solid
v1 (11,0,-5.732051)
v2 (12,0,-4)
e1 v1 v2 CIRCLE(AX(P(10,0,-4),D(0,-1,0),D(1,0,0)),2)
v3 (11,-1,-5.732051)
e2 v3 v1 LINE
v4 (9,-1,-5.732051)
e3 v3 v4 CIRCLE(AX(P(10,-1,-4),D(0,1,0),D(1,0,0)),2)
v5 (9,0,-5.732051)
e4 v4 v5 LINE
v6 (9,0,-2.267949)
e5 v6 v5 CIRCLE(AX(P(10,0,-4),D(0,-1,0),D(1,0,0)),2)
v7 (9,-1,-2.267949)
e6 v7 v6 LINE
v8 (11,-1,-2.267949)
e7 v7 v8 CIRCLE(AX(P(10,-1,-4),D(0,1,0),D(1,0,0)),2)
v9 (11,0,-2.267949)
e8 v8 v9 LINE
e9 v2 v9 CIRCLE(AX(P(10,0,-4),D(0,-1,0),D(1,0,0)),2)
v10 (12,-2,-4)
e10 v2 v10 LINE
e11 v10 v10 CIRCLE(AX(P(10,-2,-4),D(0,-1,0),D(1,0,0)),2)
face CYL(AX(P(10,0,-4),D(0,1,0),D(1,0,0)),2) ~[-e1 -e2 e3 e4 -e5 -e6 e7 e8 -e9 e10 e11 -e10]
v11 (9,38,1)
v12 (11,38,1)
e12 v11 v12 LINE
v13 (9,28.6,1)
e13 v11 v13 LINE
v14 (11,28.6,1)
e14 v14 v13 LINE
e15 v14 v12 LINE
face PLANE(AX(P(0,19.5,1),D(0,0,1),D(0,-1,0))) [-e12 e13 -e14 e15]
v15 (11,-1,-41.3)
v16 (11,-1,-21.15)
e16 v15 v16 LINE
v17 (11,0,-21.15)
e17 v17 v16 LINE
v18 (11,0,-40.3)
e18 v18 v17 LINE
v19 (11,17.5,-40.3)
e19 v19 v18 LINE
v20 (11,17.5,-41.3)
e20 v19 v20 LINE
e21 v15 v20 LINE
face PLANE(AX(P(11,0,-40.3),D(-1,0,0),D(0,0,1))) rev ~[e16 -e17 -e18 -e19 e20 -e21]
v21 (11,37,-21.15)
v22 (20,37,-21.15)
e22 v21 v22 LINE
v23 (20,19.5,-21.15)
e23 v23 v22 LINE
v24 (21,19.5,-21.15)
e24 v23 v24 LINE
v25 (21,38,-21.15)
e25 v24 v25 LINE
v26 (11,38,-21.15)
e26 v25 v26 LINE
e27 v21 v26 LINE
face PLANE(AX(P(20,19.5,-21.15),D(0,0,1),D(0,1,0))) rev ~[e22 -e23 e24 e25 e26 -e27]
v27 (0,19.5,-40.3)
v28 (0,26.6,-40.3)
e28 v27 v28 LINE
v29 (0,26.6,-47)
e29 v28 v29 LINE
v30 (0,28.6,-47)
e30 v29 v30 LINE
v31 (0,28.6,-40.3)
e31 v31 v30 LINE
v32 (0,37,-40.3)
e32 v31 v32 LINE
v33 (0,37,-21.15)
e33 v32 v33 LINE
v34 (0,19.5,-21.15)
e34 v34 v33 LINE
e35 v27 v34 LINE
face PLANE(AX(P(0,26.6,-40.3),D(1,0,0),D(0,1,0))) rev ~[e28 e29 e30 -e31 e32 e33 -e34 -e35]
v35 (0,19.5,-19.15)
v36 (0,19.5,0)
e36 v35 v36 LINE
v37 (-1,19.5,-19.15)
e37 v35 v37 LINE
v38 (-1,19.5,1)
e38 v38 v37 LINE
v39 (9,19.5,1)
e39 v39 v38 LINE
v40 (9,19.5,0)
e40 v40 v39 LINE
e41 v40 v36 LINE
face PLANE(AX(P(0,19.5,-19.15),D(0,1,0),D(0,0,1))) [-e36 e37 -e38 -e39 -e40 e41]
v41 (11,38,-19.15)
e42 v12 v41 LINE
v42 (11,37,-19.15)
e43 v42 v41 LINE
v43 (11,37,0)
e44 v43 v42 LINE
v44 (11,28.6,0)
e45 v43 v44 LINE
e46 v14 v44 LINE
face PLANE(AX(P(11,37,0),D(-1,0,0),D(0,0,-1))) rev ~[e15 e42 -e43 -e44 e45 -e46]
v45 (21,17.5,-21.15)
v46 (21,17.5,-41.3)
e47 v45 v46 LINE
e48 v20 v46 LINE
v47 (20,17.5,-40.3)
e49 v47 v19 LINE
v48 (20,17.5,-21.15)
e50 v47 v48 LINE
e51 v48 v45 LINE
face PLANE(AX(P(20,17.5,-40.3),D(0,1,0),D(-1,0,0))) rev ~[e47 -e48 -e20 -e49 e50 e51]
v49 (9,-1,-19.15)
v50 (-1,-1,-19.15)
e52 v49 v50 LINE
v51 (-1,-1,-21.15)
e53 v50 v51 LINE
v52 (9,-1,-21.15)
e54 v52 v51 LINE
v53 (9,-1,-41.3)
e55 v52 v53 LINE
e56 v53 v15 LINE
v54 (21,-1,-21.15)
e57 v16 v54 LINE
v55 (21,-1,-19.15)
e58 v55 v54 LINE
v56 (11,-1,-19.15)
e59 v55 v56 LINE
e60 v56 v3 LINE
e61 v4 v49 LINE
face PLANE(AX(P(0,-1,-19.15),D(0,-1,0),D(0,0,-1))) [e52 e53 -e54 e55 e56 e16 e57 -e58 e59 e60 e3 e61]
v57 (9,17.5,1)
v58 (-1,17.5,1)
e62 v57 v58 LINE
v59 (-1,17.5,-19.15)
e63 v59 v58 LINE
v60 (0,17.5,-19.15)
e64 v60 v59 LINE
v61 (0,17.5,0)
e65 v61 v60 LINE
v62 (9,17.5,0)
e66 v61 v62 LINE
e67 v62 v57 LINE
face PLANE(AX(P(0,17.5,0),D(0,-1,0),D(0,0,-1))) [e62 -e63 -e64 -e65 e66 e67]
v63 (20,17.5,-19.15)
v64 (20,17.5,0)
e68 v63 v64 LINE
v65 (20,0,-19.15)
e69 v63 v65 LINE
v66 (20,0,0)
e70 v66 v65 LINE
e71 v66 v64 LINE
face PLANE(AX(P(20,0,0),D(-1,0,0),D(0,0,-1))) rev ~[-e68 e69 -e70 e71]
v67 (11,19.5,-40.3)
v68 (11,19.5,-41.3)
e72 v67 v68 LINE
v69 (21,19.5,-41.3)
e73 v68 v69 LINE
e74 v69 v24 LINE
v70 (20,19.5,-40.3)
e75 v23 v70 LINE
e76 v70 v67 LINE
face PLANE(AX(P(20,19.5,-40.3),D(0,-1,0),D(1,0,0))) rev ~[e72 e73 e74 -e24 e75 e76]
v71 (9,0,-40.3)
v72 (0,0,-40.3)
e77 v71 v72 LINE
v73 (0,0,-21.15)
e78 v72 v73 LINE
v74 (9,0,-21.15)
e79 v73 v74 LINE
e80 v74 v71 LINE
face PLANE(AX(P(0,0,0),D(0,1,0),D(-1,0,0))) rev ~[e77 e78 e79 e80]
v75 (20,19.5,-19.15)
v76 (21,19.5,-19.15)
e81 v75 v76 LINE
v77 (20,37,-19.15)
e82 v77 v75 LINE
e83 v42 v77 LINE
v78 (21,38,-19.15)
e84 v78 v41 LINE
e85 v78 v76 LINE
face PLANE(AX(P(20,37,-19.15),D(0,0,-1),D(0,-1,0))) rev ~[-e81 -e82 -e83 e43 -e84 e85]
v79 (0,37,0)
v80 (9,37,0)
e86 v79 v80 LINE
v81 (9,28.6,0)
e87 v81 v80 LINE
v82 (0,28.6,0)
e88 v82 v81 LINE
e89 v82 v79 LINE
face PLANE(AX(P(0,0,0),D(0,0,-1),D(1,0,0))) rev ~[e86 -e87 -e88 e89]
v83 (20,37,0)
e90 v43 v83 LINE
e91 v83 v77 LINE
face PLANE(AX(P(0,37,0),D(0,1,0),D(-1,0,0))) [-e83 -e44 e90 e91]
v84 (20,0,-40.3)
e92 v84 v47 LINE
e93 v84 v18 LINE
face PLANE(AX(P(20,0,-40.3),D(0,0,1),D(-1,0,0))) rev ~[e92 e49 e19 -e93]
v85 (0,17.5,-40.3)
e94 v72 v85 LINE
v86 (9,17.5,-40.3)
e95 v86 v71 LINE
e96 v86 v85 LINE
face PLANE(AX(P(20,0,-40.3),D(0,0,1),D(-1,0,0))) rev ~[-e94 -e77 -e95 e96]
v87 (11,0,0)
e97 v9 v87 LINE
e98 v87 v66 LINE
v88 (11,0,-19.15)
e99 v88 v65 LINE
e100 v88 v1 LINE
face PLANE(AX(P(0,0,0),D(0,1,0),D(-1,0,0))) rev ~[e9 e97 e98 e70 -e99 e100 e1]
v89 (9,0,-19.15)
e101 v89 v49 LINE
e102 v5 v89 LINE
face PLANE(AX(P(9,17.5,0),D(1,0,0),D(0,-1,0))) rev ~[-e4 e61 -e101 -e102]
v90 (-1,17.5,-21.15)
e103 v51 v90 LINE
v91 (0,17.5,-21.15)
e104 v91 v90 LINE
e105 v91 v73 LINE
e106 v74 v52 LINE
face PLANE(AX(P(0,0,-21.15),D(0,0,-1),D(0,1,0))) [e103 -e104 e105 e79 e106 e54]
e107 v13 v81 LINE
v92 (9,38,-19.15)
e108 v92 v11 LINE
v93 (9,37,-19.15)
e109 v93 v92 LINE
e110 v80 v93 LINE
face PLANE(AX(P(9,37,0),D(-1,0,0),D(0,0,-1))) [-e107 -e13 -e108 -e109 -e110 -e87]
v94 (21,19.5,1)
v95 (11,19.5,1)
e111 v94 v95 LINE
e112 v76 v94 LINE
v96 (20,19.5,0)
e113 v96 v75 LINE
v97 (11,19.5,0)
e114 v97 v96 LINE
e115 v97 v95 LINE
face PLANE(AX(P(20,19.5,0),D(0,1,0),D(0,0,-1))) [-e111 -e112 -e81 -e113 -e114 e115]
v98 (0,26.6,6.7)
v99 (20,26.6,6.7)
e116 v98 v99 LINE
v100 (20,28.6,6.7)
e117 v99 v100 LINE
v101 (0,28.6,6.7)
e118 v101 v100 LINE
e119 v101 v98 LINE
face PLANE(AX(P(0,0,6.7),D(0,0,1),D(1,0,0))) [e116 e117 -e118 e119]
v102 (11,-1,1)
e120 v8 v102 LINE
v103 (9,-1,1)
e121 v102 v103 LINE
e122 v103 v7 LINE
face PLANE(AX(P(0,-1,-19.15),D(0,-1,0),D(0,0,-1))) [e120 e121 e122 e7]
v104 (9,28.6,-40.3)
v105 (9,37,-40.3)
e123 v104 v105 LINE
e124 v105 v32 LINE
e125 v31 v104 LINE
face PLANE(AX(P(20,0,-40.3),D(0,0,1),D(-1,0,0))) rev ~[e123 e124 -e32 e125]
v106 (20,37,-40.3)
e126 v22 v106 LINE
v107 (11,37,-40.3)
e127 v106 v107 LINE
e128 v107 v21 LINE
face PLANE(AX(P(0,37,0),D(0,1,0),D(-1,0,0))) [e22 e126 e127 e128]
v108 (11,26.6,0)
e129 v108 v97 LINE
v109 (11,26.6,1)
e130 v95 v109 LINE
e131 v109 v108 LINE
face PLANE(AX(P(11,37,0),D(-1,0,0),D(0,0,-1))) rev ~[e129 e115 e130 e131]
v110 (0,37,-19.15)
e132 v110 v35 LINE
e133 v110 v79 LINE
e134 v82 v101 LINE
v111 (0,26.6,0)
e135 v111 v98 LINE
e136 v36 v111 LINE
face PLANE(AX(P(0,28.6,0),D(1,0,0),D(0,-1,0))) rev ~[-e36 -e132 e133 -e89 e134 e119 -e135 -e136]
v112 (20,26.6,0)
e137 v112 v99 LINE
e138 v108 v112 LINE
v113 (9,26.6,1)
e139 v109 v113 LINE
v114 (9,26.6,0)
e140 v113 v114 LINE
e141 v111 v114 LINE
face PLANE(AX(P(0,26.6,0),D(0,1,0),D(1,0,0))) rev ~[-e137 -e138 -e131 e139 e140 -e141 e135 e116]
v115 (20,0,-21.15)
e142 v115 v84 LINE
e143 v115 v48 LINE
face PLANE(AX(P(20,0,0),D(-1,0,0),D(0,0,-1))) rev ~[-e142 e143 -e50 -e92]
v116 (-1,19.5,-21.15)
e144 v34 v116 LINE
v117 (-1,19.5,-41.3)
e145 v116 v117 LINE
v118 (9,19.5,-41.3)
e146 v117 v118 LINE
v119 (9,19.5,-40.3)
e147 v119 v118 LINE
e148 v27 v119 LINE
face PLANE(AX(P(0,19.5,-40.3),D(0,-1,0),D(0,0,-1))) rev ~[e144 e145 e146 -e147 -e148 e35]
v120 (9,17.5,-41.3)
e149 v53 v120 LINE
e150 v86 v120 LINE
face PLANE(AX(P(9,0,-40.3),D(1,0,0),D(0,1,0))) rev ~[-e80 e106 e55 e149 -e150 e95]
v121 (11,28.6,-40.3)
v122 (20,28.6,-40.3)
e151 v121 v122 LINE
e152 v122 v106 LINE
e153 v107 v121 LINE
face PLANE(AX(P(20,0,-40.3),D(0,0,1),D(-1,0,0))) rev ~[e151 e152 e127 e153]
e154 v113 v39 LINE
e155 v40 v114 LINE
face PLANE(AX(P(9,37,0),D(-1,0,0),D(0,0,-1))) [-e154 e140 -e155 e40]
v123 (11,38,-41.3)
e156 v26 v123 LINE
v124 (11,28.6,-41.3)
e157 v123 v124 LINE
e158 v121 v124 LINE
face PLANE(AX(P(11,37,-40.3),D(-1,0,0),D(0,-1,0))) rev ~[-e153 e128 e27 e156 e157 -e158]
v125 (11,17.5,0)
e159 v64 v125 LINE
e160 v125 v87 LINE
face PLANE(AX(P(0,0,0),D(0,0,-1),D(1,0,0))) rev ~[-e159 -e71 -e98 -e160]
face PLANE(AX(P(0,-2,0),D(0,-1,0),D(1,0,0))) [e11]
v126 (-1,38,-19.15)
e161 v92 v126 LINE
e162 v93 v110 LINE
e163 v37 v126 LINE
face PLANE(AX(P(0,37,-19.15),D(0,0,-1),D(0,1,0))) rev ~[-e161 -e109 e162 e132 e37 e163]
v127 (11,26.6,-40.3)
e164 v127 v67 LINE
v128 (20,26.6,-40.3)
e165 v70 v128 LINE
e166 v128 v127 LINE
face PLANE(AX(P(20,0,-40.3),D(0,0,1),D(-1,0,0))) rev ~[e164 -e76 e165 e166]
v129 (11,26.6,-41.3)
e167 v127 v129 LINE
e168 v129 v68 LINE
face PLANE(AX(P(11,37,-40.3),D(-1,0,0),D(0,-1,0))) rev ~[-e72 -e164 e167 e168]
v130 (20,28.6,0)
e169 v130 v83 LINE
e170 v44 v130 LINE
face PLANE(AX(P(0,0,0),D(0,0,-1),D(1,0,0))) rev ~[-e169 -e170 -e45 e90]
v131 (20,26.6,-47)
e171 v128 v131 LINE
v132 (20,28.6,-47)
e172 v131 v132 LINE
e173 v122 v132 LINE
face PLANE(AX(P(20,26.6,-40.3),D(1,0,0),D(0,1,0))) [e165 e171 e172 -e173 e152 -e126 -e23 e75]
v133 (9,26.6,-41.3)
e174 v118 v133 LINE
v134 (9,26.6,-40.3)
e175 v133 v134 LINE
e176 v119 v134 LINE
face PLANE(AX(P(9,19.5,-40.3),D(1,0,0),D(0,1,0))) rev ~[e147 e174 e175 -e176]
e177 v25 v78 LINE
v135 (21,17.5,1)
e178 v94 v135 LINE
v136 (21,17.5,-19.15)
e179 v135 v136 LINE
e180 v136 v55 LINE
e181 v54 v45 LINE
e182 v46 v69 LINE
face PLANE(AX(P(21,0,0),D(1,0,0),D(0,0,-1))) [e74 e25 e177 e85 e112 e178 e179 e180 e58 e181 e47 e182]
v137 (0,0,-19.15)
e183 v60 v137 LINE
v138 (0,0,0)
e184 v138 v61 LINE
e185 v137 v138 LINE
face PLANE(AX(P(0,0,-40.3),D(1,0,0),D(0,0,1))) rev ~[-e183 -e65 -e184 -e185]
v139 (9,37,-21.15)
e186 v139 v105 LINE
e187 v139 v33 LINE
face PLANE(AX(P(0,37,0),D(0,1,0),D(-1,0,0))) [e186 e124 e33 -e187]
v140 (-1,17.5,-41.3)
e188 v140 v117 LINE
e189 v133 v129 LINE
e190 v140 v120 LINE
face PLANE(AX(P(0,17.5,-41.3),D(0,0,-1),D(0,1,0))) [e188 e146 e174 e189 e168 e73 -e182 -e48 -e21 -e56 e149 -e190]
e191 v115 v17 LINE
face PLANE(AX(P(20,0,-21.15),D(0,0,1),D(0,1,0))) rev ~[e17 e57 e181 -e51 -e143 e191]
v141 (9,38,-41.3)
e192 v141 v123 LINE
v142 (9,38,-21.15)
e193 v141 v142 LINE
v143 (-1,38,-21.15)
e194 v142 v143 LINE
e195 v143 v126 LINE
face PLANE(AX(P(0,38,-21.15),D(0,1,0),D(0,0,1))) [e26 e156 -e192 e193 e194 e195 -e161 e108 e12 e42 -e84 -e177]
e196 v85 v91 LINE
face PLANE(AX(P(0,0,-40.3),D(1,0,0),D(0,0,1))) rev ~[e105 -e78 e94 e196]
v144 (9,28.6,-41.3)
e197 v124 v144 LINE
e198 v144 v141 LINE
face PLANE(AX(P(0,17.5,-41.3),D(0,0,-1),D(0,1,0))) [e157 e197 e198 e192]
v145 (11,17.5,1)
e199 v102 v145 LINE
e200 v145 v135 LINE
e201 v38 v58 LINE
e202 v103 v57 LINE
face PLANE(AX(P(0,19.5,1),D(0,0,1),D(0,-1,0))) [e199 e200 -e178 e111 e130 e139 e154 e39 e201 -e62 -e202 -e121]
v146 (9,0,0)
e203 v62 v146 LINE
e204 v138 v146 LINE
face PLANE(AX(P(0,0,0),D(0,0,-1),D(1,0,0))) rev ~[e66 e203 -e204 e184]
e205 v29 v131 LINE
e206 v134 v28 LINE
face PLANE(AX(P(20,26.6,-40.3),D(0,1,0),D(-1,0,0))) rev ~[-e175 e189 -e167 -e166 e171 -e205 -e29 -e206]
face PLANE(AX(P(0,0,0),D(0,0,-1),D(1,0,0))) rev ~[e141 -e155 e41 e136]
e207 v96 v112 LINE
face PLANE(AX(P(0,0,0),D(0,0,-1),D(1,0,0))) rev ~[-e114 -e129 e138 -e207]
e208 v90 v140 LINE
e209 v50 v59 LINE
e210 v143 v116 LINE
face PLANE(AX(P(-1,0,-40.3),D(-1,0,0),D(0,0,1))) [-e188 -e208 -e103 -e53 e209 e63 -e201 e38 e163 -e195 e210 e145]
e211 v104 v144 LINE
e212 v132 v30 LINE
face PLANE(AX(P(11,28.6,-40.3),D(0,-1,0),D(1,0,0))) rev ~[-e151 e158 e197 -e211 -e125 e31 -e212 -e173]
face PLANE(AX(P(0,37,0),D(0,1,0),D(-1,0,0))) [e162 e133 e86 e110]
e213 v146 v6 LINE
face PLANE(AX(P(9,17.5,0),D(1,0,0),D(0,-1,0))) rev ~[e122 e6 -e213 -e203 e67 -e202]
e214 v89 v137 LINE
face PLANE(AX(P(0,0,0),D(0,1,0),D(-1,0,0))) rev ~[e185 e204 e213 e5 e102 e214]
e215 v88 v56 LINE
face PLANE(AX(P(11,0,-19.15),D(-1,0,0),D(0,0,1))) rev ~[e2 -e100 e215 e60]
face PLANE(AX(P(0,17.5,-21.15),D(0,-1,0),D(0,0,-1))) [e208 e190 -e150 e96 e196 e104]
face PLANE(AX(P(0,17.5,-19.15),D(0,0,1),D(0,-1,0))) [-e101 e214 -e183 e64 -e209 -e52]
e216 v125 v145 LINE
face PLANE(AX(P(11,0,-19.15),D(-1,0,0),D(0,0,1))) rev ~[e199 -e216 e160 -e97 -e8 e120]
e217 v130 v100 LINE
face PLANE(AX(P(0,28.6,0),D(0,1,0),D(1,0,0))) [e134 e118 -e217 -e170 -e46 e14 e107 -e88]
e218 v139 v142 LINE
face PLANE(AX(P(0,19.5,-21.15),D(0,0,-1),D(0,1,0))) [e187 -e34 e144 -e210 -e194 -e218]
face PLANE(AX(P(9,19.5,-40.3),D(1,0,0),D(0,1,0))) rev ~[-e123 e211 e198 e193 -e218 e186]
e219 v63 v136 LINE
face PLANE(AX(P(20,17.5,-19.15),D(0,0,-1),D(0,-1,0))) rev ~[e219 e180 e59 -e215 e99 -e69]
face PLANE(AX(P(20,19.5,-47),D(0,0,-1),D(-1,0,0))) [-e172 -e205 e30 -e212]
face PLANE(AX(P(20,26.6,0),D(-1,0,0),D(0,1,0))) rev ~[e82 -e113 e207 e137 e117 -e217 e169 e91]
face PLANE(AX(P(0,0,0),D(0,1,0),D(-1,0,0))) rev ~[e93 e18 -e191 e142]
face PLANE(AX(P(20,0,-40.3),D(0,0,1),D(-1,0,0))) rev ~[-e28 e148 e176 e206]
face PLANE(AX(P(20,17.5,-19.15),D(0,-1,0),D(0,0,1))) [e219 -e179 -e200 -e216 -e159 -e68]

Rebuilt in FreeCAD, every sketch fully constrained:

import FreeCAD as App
import Part
import Sketcher

doc = App.newDocument("Part")
body = doc.addObject("PartDesign::Body", "Body")

# Sketch on XZ plane
sketch1 = body.newObject("Sketcher::SketchObject", "Sketch")
sketch1.AttachmentSupport = (doc.getObject("XZ_Plane"), [""])
sketch1.MapMode = "FlatFace"
sketch1.addGeometry([
    Part.LineSegment(App.Vector(0, -40, 0), App.Vector(0, 0, 0)),
    Part.LineSegment(App.Vector(0, 0, 0), App.Vector(20, 0, 0)),
    Part.LineSegment(App.Vector(20, 0, 0), App.Vector(20, -40, 0)),
    Part.LineSegment(App.Vector(20, -40, 0), App.Vector(0, -40, 0)),
], False)
sketch1.addConstraint([
    Sketcher.Constraint("Coincident", 0, 2, 1, 1),
    Sketcher.Constraint("Coincident", 1, 2, 2, 1),
    Sketcher.Constraint("Coincident", 2, 2, 3, 1),
    Sketcher.Constraint("Coincident", 3, 2, 0, 1),
    Sketcher.Constraint("Vertical", 0),
    Sketcher.Constraint("Horizontal", 1),
    Sketcher.Constraint("Vertical", 2),
    Sketcher.Constraint("Horizontal", 3),
    Sketcher.Constraint("Coincident", 0, 2, -1, 1),
    Sketcher.Constraint("DistanceX", 1, 1, 1, 2, 20.0),
    Sketcher.Constraint("DistanceY", 0, 1, 0, 2, 40.3),
])
pad1 = body.newObject("PartDesign::Pad", "Pad")
pad1.Profile = sketch1
pad1.Length = 37
pad1.Reversed = True

# Sketch on YZ plane
sketch2 = body.newObject("Sketcher::SketchObject", "Sketch001")
sketch2.AttachmentSupport = (doc.getObject("YZ_Plane"), [""])
sketch2.MapMode = "FlatFace"
sketch2.AttachmentOffset = App.Placement(App.Vector(0, 0, 20), App.Rotation())
sketch2.addGeometry([
    Part.LineSegment(App.Vector(17.5, -19.1, 0), App.Vector(0, -19.1, 0)),  # 0
    Part.LineSegment(App.Vector(0, -19.1, 0), App.Vector(0, -21.1, 0)),  # 1
    Part.LineSegment(App.Vector(0, -21.1, 0), App.Vector(17.5, -21.1, 0)),  # 2
    Part.LineSegment(App.Vector(17.5, -21.1, 0), App.Vector(17.5, -40.3, 0)),  # 3
    Part.LineSegment(App.Vector(17.5, -40.3, 0), App.Vector(19.5, -40.3, 0)),  # 4
    Part.LineSegment(App.Vector(19.5, -40.3, 0), App.Vector(19.5, -21.1, 0)),  # 5
    Part.LineSegment(App.Vector(19.5, -21.1, 0), App.Vector(37, -21.1, 0)),  # 6
    Part.LineSegment(App.Vector(37, -21.1, 0), App.Vector(37, -19.1, 0)),  # 7
    Part.LineSegment(App.Vector(37, -19.1, 0), App.Vector(19.5, -19.1, 0)),  # 8
    Part.LineSegment(App.Vector(19.5, -19.1, 0), App.Vector(19.5, 0, 0)),  # 9
    Part.LineSegment(App.Vector(19.5, 0, 0), App.Vector(17.5, 0, 0)),  # 10
    Part.LineSegment(App.Vector(17.5, 0, 0), App.Vector(17.5, -19.1, 0)),  # 11
], False)
sketch2.addConstraint([
    Sketcher.Constraint("Coincident", 0, 2, 1, 1),
    Sketcher.Constraint("Coincident", 1, 2, 2, 1),
    Sketcher.Constraint("Coincident", 2, 2, 3, 1),
    Sketcher.Constraint("Coincident", 3, 2, 4, 1),
    Sketcher.Constraint("Coincident", 4, 2, 5, 1),
    Sketcher.Constraint("Coincident", 5, 2, 6, 1),
    Sketcher.Constraint("Coincident", 6, 2, 7, 1),
    Sketcher.Constraint("Coincident", 7, 2, 8, 1),
    Sketcher.Constraint("Coincident", 8, 2, 9, 1),
    Sketcher.Constraint("Coincident", 9, 2, 10, 1),
    Sketcher.Constraint("Coincident", 10, 2, 11, 1),
    Sketcher.Constraint("Coincident", 11, 2, 0, 1),
    Sketcher.Constraint("Horizontal", 0),
    Sketcher.Constraint("Vertical", 1),
    Sketcher.Constraint("Horizontal", 2),
    Sketcher.Constraint("Vertical", 3),
    Sketcher.Constraint("Horizontal", 4),
    Sketcher.Constraint("Vertical", 5),
    Sketcher.Constraint("Horizontal", 6),
    Sketcher.Constraint("Vertical", 7),
    Sketcher.Constraint("Horizontal", 8),
    Sketcher.Constraint("Vertical", 9),
    Sketcher.Constraint("Horizontal", 10),
    Sketcher.Constraint("Vertical", 11),
    Sketcher.Constraint("PointOnObject", 0, 2, -2),
    Sketcher.Constraint("PointOnObject", 9, 2, -1),
    Sketcher.Constraint("Horizontal", 2, 2, 5, 2),
    Sketcher.Constraint("Horizontal", 0, 2, 7, 2),
    Sketcher.Constraint("Vertical", 5, 2, 8, 2),
    Sketcher.Constraint("Vertical", 3, 2, 10, 2),
    Sketcher.Constraint("Equal", 2, 6),
    Sketcher.Constraint("Equal", 10, 1),
    Sketcher.Constraint("Equal", 5, 9),
    Sketcher.Constraint("DistanceX", 4, 1, 4, 2, 2.0),
    Sketcher.Constraint("DistanceX", 0, 2, 0, 1, 17.5),
    Sketcher.Constraint("DistanceY", 3, 2, 3, 1, 19.15),
])
pad2 = body.newObject("PartDesign::Pad", "Pad001")
pad2.Profile = sketch2
pad2.Length = 1

# Sketch on XZ plane
sketch3 = body.newObject("Sketcher::SketchObject", "Sketch002")
sketch3.AttachmentSupport = (doc.getObject("XZ_Plane"), [""])
sketch3.MapMode = "FlatFace"
sketch3.addGeometry([
    Part.LineSegment(App.Vector(11, 0, 0), App.Vector(9, 0, 0)),  # 0
    Part.LineSegment(App.Vector(9, 0, 0), App.Vector(9, -19.1, 0)),  # 1
    Part.LineSegment(App.Vector(9, -19.1, 0), App.Vector(0, -19.1, 0)),  # 2
    Part.LineSegment(App.Vector(0, -19.1, 0), App.Vector(0, -21.1, 0)),  # 3
    Part.LineSegment(App.Vector(0, -21.1, 0), App.Vector(9, -21.1, 0)),  # 4
    Part.LineSegment(App.Vector(9, -21.1, 0), App.Vector(9, -40.3, 0)),  # 5
    Part.LineSegment(App.Vector(9, -40.3, 0), App.Vector(11, -40.3, 0)),  # 6
    Part.LineSegment(App.Vector(11, -40.3, 0), App.Vector(11, -21.1, 0)),  # 7
    Part.LineSegment(App.Vector(11, -21.1, 0), App.Vector(21, -21.1, 0)),  # 8
    Part.LineSegment(App.Vector(21, -21.1, 0), App.Vector(21, -19.1, 0)),  # 9
    Part.LineSegment(App.Vector(21, -19.1, 0), App.Vector(11, -19.1, 0)),  # 10
    Part.LineSegment(App.Vector(11, -19.1, 0), App.Vector(11, 0, 0)),  # 11
], False)
sketch3.addConstraint([
    Sketcher.Constraint("Coincident", 0, 2, 1, 1),
    Sketcher.Constraint("Coincident", 1, 2, 2, 1),
    Sketcher.Constraint("Coincident", 2, 2, 3, 1),
    Sketcher.Constraint("Coincident", 3, 2, 4, 1),
    Sketcher.Constraint("Coincident", 4, 2, 5, 1),
    Sketcher.Constraint("Coincident", 5, 2, 6, 1),
    Sketcher.Constraint("Coincident", 6, 2, 7, 1),
    Sketcher.Constraint("Coincident", 7, 2, 8, 1),
    Sketcher.Constraint("Coincident", 8, 2, 9, 1),
    Sketcher.Constraint("Coincident", 9, 2, 10, 1),
    Sketcher.Constraint("Coincident", 10, 2, 11, 1),
    Sketcher.Constraint("Coincident", 11, 2, 0, 1),
    Sketcher.Constraint("Horizontal", 0),
    Sketcher.Constraint("Vertical", 1),
    Sketcher.Constraint("Horizontal", 2),
    Sketcher.Constraint("Vertical", 3),
    Sketcher.Constraint("Horizontal", 4),
    Sketcher.Constraint("Vertical", 5),
    Sketcher.Constraint("Horizontal", 6),
    Sketcher.Constraint("Vertical", 7),
    Sketcher.Constraint("Horizontal", 8),
    Sketcher.Constraint("Vertical", 9),
    Sketcher.Constraint("Horizontal", 10),
    Sketcher.Constraint("Vertical", 11),
    Sketcher.Constraint("PointOnObject", 0, 2, -1),
    Sketcher.Constraint("PointOnObject", 2, 2, -2),
    Sketcher.Constraint("Horizontal", 4, 2, 7, 2),
    Sketcher.Constraint("Horizontal", 2, 2, 9, 2),
    Sketcher.Constraint("Vertical", 1, 2, 4, 2),
    Sketcher.Constraint("Vertical", 7, 2, 10, 2),
    Sketcher.Constraint("Equal", 6, 3),
    Sketcher.Constraint("Equal", 1, 5),
    Sketcher.Constraint("DistanceX", 8, 1, 8, 2, 10.0),
    Sketcher.Constraint("DistanceX", 4, 2, 8, 2, 12.0),
    Sketcher.Constraint("DistanceX", 2, 2, 2, 1, 9.0),
    Sketcher.Constraint("DistanceY", 1, 2, 1, 1, 19.15),
])
pad3 = body.newObject("PartDesign::Pad", "Pad002")
pad3.Profile = sketch3
pad3.Length = 1

# Sketch on XY plane
sketch4 = body.newObject("Sketcher::SketchObject", "Sketch003")
sketch4.AttachmentSupport = (doc.getObject("XY_Plane"), [""])
sketch4.MapMode = "FlatFace"
sketch4.AttachmentOffset = App.Placement(App.Vector(0, 0, -40.3), App.Rotation())
sketch4.addGeometry([
    Part.LineSegment(App.Vector(11, 17.5, 0), App.Vector(11, -1, 0)),  # 0
    Part.LineSegment(App.Vector(11, -1, 0), App.Vector(9, -1, 0)),  # 1
    Part.LineSegment(App.Vector(9, -1, 0), App.Vector(9, 17.5, 0)),  # 2
    Part.LineSegment(App.Vector(9, 17.5, 0), App.Vector(0, 17.5, 0)),  # 3
    Part.LineSegment(App.Vector(0, 17.5, 0), App.Vector(0, 19.5, 0)),  # 4
    Part.LineSegment(App.Vector(0, 19.5, 0), App.Vector(9, 19.5, 0)),  # 5
    Part.LineSegment(App.Vector(9, 19.5, 0), App.Vector(9, 37, 0)),  # 6
    Part.LineSegment(App.Vector(9, 37, 0), App.Vector(11, 37, 0)),  # 7
    Part.LineSegment(App.Vector(11, 37, 0), App.Vector(11, 19.5, 0)),  # 8
    Part.LineSegment(App.Vector(11, 19.5, 0), App.Vector(21, 19.5, 0)),  # 9
    Part.LineSegment(App.Vector(21, 19.5, 0), App.Vector(21, 17.5, 0)),  # 10
    Part.LineSegment(App.Vector(21, 17.5, 0), App.Vector(11, 17.5, 0)),  # 11
], False)
sketch4.addConstraint([
    Sketcher.Constraint("Coincident", 0, 2, 1, 1),
    Sketcher.Constraint("Coincident", 1, 2, 2, 1),
    Sketcher.Constraint("Coincident", 2, 2, 3, 1),
    Sketcher.Constraint("Coincident", 3, 2, 4, 1),
    Sketcher.Constraint("Coincident", 4, 2, 5, 1),
    Sketcher.Constraint("Coincident", 5, 2, 6, 1),
    Sketcher.Constraint("Coincident", 6, 2, 7, 1),
    Sketcher.Constraint("Coincident", 7, 2, 8, 1),
    Sketcher.Constraint("Coincident", 8, 2, 9, 1),
    Sketcher.Constraint("Coincident", 9, 2, 10, 1),
    Sketcher.Constraint("Coincident", 10, 2, 11, 1),
    Sketcher.Constraint("Coincident", 11, 2, 0, 1),
    Sketcher.Constraint("Vertical", 0),
    Sketcher.Constraint("Horizontal", 1),
    Sketcher.Constraint("Vertical", 2),
    Sketcher.Constraint("Horizontal", 3),
    Sketcher.Constraint("Vertical", 4),
    Sketcher.Constraint("Horizontal", 5),
    Sketcher.Constraint("Vertical", 6),
    Sketcher.Constraint("Horizontal", 7),
    Sketcher.Constraint("Vertical", 8),
    Sketcher.Constraint("Horizontal", 9),
    Sketcher.Constraint("Vertical", 10),
    Sketcher.Constraint("Horizontal", 11),
    Sketcher.Constraint("PointOnObject", 3, 2, -2),
    Sketcher.Constraint("Horizontal", 5, 2, 8, 2),
    Sketcher.Constraint("Horizontal", 3, 2, 10, 2),
    Sketcher.Constraint("Vertical", 2, 2, 5, 2),
    Sketcher.Constraint("Vertical", 0, 2, 7, 2),
    Sketcher.Constraint("Equal", 7, 4),
    Sketcher.Constraint("DistanceX", 1, 2, 1, 1, 2.0),
    Sketcher.Constraint("DistanceX", 3, 2, 3, 1, 9.0),
    Sketcher.Constraint("DistanceX", 9, 1, 9, 2, 10.0),
    Sketcher.Constraint("DistanceY", 0, 2, 0, 1, 18.5),
    Sketcher.Constraint("DistanceY", 6, 1, 6, 2, 17.5),
    Sketcher.Constraint("DistanceY", 0, 2, -1, 1, 1.0),
])
pad4 = body.newObject("PartDesign::Pad", "Pad003")
pad4.Profile = sketch4
pad4.Length = 1
pad4.Reversed = True

# Sketch on XZ plane
sketch5 = body.newObject("Sketcher::SketchObject", "Sketch004")
sketch5.AttachmentSupport = (doc.getObject("XZ_Plane"), [""])
sketch5.MapMode = "FlatFace"
sketch5.AttachmentOffset = App.Placement(App.Vector(0, 0, -37), App.Rotation())
sketch5.addGeometry([
    Part.LineSegment(App.Vector(11, -19.1, 0), App.Vector(21, -19.1, 0)),  # 0
    Part.LineSegment(App.Vector(21, -19.1, 0), App.Vector(21, -21.1, 0)),  # 1
    Part.LineSegment(App.Vector(21, -21.1, 0), App.Vector(11, -21.1, 0)),  # 2
    Part.LineSegment(App.Vector(11, -21.1, 0), App.Vector(11, -41.3, 0)),  # 3
    Part.LineSegment(App.Vector(11, -41.3, 0), App.Vector(9, -41.3, 0)),  # 4
    Part.LineSegment(App.Vector(9, -41.3, 0), App.Vector(9, -21.1, 0)),  # 5
    Part.LineSegment(App.Vector(9, -21.1, 0), App.Vector(0, -21.1, 0)),  # 6
    Part.LineSegment(App.Vector(0, -21.1, 0), App.Vector(0, -19.1, 0)),  # 7
    Part.LineSegment(App.Vector(0, -19.1, 0), App.Vector(9, -19.1, 0)),  # 8
    Part.LineSegment(App.Vector(9, -19.1, 0), App.Vector(9, 0, 0)),  # 9
    Part.LineSegment(App.Vector(9, 0, 0), App.Vector(11, 0, 0)),  # 10
    Part.LineSegment(App.Vector(11, 0, 0), App.Vector(11, -19.1, 0)),  # 11
], False)
sketch5.addConstraint([
    Sketcher.Constraint("Coincident", 0, 2, 1, 1),
    Sketcher.Constraint("Coincident", 1, 2, 2, 1),
    Sketcher.Constraint("Coincident", 2, 2, 3, 1),
    Sketcher.Constraint("Coincident", 3, 2, 4, 1),
    Sketcher.Constraint("Coincident", 4, 2, 5, 1),
    Sketcher.Constraint("Coincident", 5, 2, 6, 1),
    Sketcher.Constraint("Coincident", 6, 2, 7, 1),
    Sketcher.Constraint("Coincident", 7, 2, 8, 1),
    Sketcher.Constraint("Coincident", 8, 2, 9, 1),
    Sketcher.Constraint("Coincident", 9, 2, 10, 1),
    Sketcher.Constraint("Coincident", 10, 2, 11, 1),
    Sketcher.Constraint("Coincident", 11, 2, 0, 1),
    Sketcher.Constraint("Horizontal", 0),
    Sketcher.Constraint("Vertical", 1),
    Sketcher.Constraint("Horizontal", 2),
    Sketcher.Constraint("Vertical", 3),
    Sketcher.Constraint("Horizontal", 4),
    Sketcher.Constraint("Vertical", 5),
    Sketcher.Constraint("Horizontal", 6),
    Sketcher.Constraint("Vertical", 7),
    Sketcher.Constraint("Horizontal", 8),
    Sketcher.Constraint("Vertical", 9),
    Sketcher.Constraint("Horizontal", 10),
    Sketcher.Constraint("Vertical", 11),
    Sketcher.Constraint("PointOnObject", 6, 2, -2),
    Sketcher.Constraint("PointOnObject", 9, 2, -1),
    Sketcher.Constraint("Horizontal", 2, 2, 5, 2),
    Sketcher.Constraint("Horizontal", 0, 2, 7, 2),
    Sketcher.Constraint("Vertical", 5, 2, 8, 2),
    Sketcher.Constraint("Vertical", 3, 2, 10, 2),
    Sketcher.Constraint("Equal", 10, 1),
    Sketcher.Constraint("DistanceX", 0, 1, 0, 2, 10.0),
    Sketcher.Constraint("DistanceX", 4, 2, 4, 1, 2.0),
    Sketcher.Constraint("DistanceX", 6, 2, 6, 1, 9.0),
    Sketcher.Constraint("DistanceY", 3, 2, 3, 1, 20.15),
    Sketcher.Constraint("DistanceY", 9, 1, 9, 2, 19.15),
])
pad5 = body.newObject("PartDesign::Pad", "Pad004")
pad5.Profile = sketch5
pad5.Length = 1
pad5.Reversed = True

# Sketch on XY plane
sketch6 = body.newObject("Sketcher::SketchObject", "Sketch005")
sketch6.AttachmentSupport = (doc.getObject("XY_Plane"), [""])
sketch6.MapMode = "FlatFace"
sketch6.addGeometry([
    Part.LineSegment(App.Vector(9, 17.5, 0), App.Vector(9, -1, 0)),  # 0
    Part.LineSegment(App.Vector(9, -1, 0), App.Vector(11, -1, 0)),  # 1
    Part.LineSegment(App.Vector(11, -1, 0), App.Vector(11, 17.5, 0)),  # 2
    Part.LineSegment(App.Vector(11, 17.5, 0), App.Vector(21, 17.5, 0)),  # 3
    Part.LineSegment(App.Vector(21, 17.5, 0), App.Vector(21, 19.5, 0)),  # 4
    Part.LineSegment(App.Vector(21, 19.5, 0), App.Vector(11, 19.5, 0)),  # 5
    Part.LineSegment(App.Vector(11, 19.5, 0), App.Vector(11, 38, 0)),  # 6
    Part.LineSegment(App.Vector(11, 38, 0), App.Vector(9, 38, 0)),  # 7
    Part.LineSegment(App.Vector(9, 38, 0), App.Vector(9, 19.5, 0)),  # 8
    Part.LineSegment(App.Vector(9, 19.5, 0), App.Vector(0, 19.5, 0)),  # 9
    Part.LineSegment(App.Vector(0, 19.5, 0), App.Vector(0, 17.5, 0)),  # 10
    Part.LineSegment(App.Vector(0, 17.5, 0), App.Vector(9, 17.5, 0)),  # 11
], False)
sketch6.addConstraint([
    Sketcher.Constraint("Coincident", 0, 2, 1, 1),
    Sketcher.Constraint("Coincident", 1, 2, 2, 1),
    Sketcher.Constraint("Coincident", 2, 2, 3, 1),
    Sketcher.Constraint("Coincident", 3, 2, 4, 1),
    Sketcher.Constraint("Coincident", 4, 2, 5, 1),
    Sketcher.Constraint("Coincident", 5, 2, 6, 1),
    Sketcher.Constraint("Coincident", 6, 2, 7, 1),
    Sketcher.Constraint("Coincident", 7, 2, 8, 1),
    Sketcher.Constraint("Coincident", 8, 2, 9, 1),
    Sketcher.Constraint("Coincident", 9, 2, 10, 1),
    Sketcher.Constraint("Coincident", 10, 2, 11, 1),
    Sketcher.Constraint("Coincident", 11, 2, 0, 1),
    Sketcher.Constraint("Vertical", 0),
    Sketcher.Constraint("Horizontal", 1),
    Sketcher.Constraint("Vertical", 2),
    Sketcher.Constraint("Horizontal", 3),
    Sketcher.Constraint("Vertical", 4),
    Sketcher.Constraint("Horizontal", 5),
    Sketcher.Constraint("Vertical", 6),
    Sketcher.Constraint("Horizontal", 7),
    Sketcher.Constraint("Vertical", 8),
    Sketcher.Constraint("Horizontal", 9),
    Sketcher.Constraint("Vertical", 10),
    Sketcher.Constraint("Horizontal", 11),
    Sketcher.Constraint("PointOnObject", 9, 2, -2),
    Sketcher.Constraint("Horizontal", 5, 2, 8, 2),
    Sketcher.Constraint("Horizontal", 3, 2, 10, 2),
    Sketcher.Constraint("Vertical", 2, 2, 5, 2),
    Sketcher.Constraint("Vertical", 0, 2, 7, 2),
    Sketcher.Constraint("Equal", 7, 4),
    Sketcher.Constraint("Equal", 2, 6),
    Sketcher.Constraint("DistanceX", 1, 1, 1, 2, 2.0),
    Sketcher.Constraint("DistanceX", 3, 1, 3, 2, 10.0),
    Sketcher.Constraint("DistanceX", 9, 2, 9, 1, 9.0),
    Sketcher.Constraint("DistanceY", 0, 2, 0, 1, 18.5),
    Sketcher.Constraint("DistanceY", 0, 2, -1, 1, 1.0),
])
pad6 = body.newObject("PartDesign::Pad", "Pad005")
pad6.Profile = sketch6
pad6.Length = 1

# Sketch on YZ plane
sketch7 = body.newObject("Sketcher::SketchObject", "Sketch006")
sketch7.AttachmentSupport = (doc.getObject("YZ_Plane"), [""])
sketch7.MapMode = "FlatFace"
sketch7.addGeometry([
    Part.LineSegment(App.Vector(17.5, -21.1, 0), App.Vector(-1, -21.1, 0)),  # 0
    Part.LineSegment(App.Vector(-1, -21.1, 0), App.Vector(-1, -19.1, 0)),  # 1
    Part.LineSegment(App.Vector(-1, -19.1, 0), App.Vector(17.5, -19.1, 0)),  # 2
    Part.LineSegment(App.Vector(17.5, -19.1, 0), App.Vector(17.5, 1, 0)),  # 3
    Part.LineSegment(App.Vector(17.5, 1, 0), App.Vector(19.5, 1, 0)),  # 4
    Part.LineSegment(App.Vector(19.5, 1, 0), App.Vector(19.5, -19.1, 0)),  # 5
    Part.LineSegment(App.Vector(19.5, -19.1, 0), App.Vector(38, -19.1, 0)),  # 6
    Part.LineSegment(App.Vector(38, -19.1, 0), App.Vector(38, -21.1, 0)),  # 7
    Part.LineSegment(App.Vector(38, -21.1, 0), App.Vector(19.5, -21.1, 0)),  # 8
    Part.LineSegment(App.Vector(19.5, -21.1, 0), App.Vector(19.5, -41.3, 0)),  # 9
    Part.LineSegment(App.Vector(19.5, -41.3, 0), App.Vector(17.5, -41.3, 0)),  # 10
    Part.LineSegment(App.Vector(17.5, -41.3, 0), App.Vector(17.5, -21.1, 0)),  # 11
], False)
sketch7.addConstraint([
    Sketcher.Constraint("Coincident", 0, 2, 1, 1),
    Sketcher.Constraint("Coincident", 1, 2, 2, 1),
    Sketcher.Constraint("Coincident", 2, 2, 3, 1),
    Sketcher.Constraint("Coincident", 3, 2, 4, 1),
    Sketcher.Constraint("Coincident", 4, 2, 5, 1),
    Sketcher.Constraint("Coincident", 5, 2, 6, 1),
    Sketcher.Constraint("Coincident", 6, 2, 7, 1),
    Sketcher.Constraint("Coincident", 7, 2, 8, 1),
    Sketcher.Constraint("Coincident", 8, 2, 9, 1),
    Sketcher.Constraint("Coincident", 9, 2, 10, 1),
    Sketcher.Constraint("Coincident", 10, 2, 11, 1),
    Sketcher.Constraint("Coincident", 11, 2, 0, 1),
    Sketcher.Constraint("Horizontal", 0),
    Sketcher.Constraint("Vertical", 1),
    Sketcher.Constraint("Horizontal", 2),
    Sketcher.Constraint("Vertical", 3),
    Sketcher.Constraint("Horizontal", 4),
    Sketcher.Constraint("Vertical", 5),
    Sketcher.Constraint("Horizontal", 6),
    Sketcher.Constraint("Vertical", 7),
    Sketcher.Constraint("Horizontal", 8),
    Sketcher.Constraint("Vertical", 9),
    Sketcher.Constraint("Horizontal", 10),
    Sketcher.Constraint("Vertical", 11),
    Sketcher.Constraint("Horizontal", 2, 2, 5, 2),
    Sketcher.Constraint("Horizontal", 0, 2, 7, 2),
    Sketcher.Constraint("Vertical", 5, 2, 8, 2),
    Sketcher.Constraint("Vertical", 3, 2, 10, 2),
    Sketcher.Constraint("Equal", 2, 6),
    Sketcher.Constraint("Equal", 10, 1),
    Sketcher.Constraint("Equal", 5, 9),
    Sketcher.Constraint("DistanceX", 4, 1, 4, 2, 2.0),
    Sketcher.Constraint("DistanceX", 0, 2, 0, 1, 18.5),
    Sketcher.Constraint("DistanceX", 0, 2, -1, 1, 1.0),
    Sketcher.Constraint("DistanceY", -1, 1, 3, 2, 1.0),
    Sketcher.Constraint("DistanceY", 3, 1, 3, 2, 20.15),
])
pad7 = body.newObject("PartDesign::Pad", "Pad006")
pad7.Profile = sketch7
pad7.Length = 1
pad7.Reversed = True

# Sketch on XZ plane
sketch8 = body.newObject("Sketcher::SketchObject", "Sketch007")
sketch8.AttachmentSupport = (doc.getObject("XZ_Plane"), [""])
sketch8.MapMode = "FlatFace"
sketch8.addGeometry(Part.Circle(App.Vector(10, -4, 0), App.Vector(0, 0, 1), 2), False)
sketch8.addConstraint([
    Sketcher.Constraint("Diameter", 0, 4.0),
    Sketcher.Constraint("DistanceY", 0, 3, -1, 1, 4.0),
    Sketcher.Constraint("DistanceX", -1, 1, 0, 3, 10.0),
])
pad8 = body.newObject("PartDesign::Pad", "Pad007")
pad8.Profile = sketch8
pad8.Length = 2

# Sketch on XY plane
sketch9 = body.newObject("Sketcher::SketchObject", "Sketch008")
sketch9.AttachmentSupport = (doc.getObject("XY_Plane"), [""])
sketch9.MapMode = "FlatFace"
sketch9.addGeometry([
    Part.LineSegment(App.Vector(20, 28.6, 0), App.Vector(0, 28.6, 0)),
    Part.LineSegment(App.Vector(0, 28.6, 0), App.Vector(0, 26.6, 0)),
    Part.LineSegment(App.Vector(0, 26.6, 0), App.Vector(20, 26.6, 0)),
    Part.LineSegment(App.Vector(20, 26.6, 0), App.Vector(20, 28.6, 0)),
], False)
sketch9.addConstraint([
    Sketcher.Constraint("Coincident", 0, 2, 1, 1),
    Sketcher.Constraint("Coincident", 1, 2, 2, 1),
    Sketcher.Constraint("Coincident", 2, 2, 3, 1),
    Sketcher.Constraint("Coincident", 3, 2, 0, 1),
    Sketcher.Constraint("Horizontal", 0),
    Sketcher.Constraint("Vertical", 1),
    Sketcher.Constraint("Horizontal", 2),
    Sketcher.Constraint("Vertical", 3),
    Sketcher.Constraint("PointOnObject", 0, 2, -2),
    Sketcher.Constraint("DistanceX", 0, 2, 0, 1, 20.0),
    Sketcher.Constraint("DistanceY", 1, 2, 1, 1, 2.0),
    Sketcher.Constraint("DistanceY", -1, 1, 1, 2, 26.6),
])
pad9 = body.newObject("PartDesign::Pad", "Pad008")
pad9.Profile = sketch9
pad9.Length = 6.7

# Sketch on XY plane
sketch10 = body.newObject("Sketcher::SketchObject", "Sketch009")
sketch10.AttachmentSupport = (doc.getObject("XY_Plane"), [""])
sketch10.MapMode = "FlatFace"
sketch10.AttachmentOffset = App.Placement(App.Vector(0, 0, -40.3), App.Rotation())
sketch10.addGeometry([
    Part.LineSegment(App.Vector(20, 28.6, 0), App.Vector(20, 26.6, 0)),
    Part.LineSegment(App.Vector(20, 26.6, 0), App.Vector(0, 26.6, 0)),
    Part.LineSegment(App.Vector(0, 26.6, 0), App.Vector(0, 28.6, 0)),
    Part.LineSegment(App.Vector(0, 28.6, 0), App.Vector(20, 28.6, 0)),
], False)
sketch10.addConstraint([
    Sketcher.Constraint("Coincident", 0, 2, 1, 1),
    Sketcher.Constraint("Coincident", 1, 2, 2, 1),
    Sketcher.Constraint("Coincident", 2, 2, 3, 1),
    Sketcher.Constraint("Coincident", 3, 2, 0, 1),
    Sketcher.Constraint("Vertical", 0),
    Sketcher.Constraint("Horizontal", 1),
    Sketcher.Constraint("Vertical", 2),
    Sketcher.Constraint("Horizontal", 3),
    Sketcher.Constraint("PointOnObject", 1, 2, -2),
    Sketcher.Constraint("DistanceX", 1, 2, 1, 1, 20.0),
    Sketcher.Constraint("DistanceY", 0, 2, 0, 1, 2.0),
    Sketcher.Constraint("DistanceY", -1, 1, 0, 2, 26.6),
])
pad10 = body.newObject("PartDesign::Pad", "Pad009")
pad10.Profile = sketch10
pad10.Length = 6.7
pad10.Reversed = True

doc.recompute()
